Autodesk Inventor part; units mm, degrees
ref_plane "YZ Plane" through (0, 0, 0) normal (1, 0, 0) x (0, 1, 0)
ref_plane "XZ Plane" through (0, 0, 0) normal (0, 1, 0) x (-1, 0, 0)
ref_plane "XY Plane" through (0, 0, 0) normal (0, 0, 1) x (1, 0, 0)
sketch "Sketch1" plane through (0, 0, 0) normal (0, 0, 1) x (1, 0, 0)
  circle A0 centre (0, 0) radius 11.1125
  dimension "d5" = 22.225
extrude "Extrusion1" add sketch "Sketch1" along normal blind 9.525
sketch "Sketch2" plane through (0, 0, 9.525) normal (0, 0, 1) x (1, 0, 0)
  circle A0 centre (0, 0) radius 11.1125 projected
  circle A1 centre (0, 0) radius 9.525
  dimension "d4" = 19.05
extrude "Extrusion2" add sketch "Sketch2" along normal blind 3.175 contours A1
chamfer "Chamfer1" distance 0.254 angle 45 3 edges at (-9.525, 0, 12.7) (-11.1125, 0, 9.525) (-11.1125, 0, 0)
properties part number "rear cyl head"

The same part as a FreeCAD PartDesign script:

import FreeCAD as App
import Part
import Sketcher
Q = App.Units.Quantity


def edges_at(feature, points):
    """Names of the edges that pass closest to the given points."""
    edges = feature.Shape.Edges
    near = lambda p: min(range(len(edges)), key=lambda i: edges[i].distToShape(Part.Vertex(*p))[0])
    return sorted({f"Edge{near(p) + 1}" for p in points})

doc = App.newDocument("Part")
body = doc.addObject("PartDesign::Body", "Body")

sketch1 = doc.addObject("Sketcher::SketchObject", "Sketch")
body.addObject(sketch1)
sketch1.AttachmentSupport = (doc.XY_Plane, [""])
sketch1.MapMode = "FlatFace"
sketch1.addGeometry(Part.Circle(App.Vector(0, 0, 0), App.Vector(0, 0, 1), 11), False)
sketch1.addConstraint([
    Sketcher.Constraint("Coincident", 0, 3, -1, 1),
    Sketcher.Constraint("Diameter", 0, Q("0.875 in")),
])
pad1 = doc.addObject("PartDesign::Pad", "Pad")
body.addObject(pad1)
pad1.Profile = sketch1
pad1.Length = Q("0.375 in")

sketch2 = doc.addObject("Sketcher::SketchObject", "Sketch001")
body.addObject(sketch2)
sketch2.AttachmentSupport = (doc.XY_Plane, [""])
sketch2.MapMode = "FlatFace"
sketch2.AttachmentOffset = App.Placement(App.Vector(0, 0, 0.375 * 25.4), App.Rotation())
sketch2.addGeometry(Part.Circle(App.Vector(0, 0, 0), App.Vector(0, 0, 1), 10), False)
sketch2.addConstraint([
    Sketcher.Constraint("Coincident", 0, 3, -1, 1),
    Sketcher.Constraint("Diameter", 0, Q("0.75 in")),
])
pad2 = doc.addObject("PartDesign::Pad", "Pad001")
body.addObject(pad2)
pad2.Profile = sketch2
pad2.Length = Q("0.125 in")
doc.recompute()

chamfer = doc.addObject("PartDesign::Chamfer", "Chamfer")
body.addObject(chamfer)
chamfer.Base = (pad2, edges_at(pad2, [(-9.525, 0, 12.7), (-11.113, 0, 9.525), (-11.113, 0, 0)]))
chamfer.Size = Q("0.01 in")

doc.recompute()
